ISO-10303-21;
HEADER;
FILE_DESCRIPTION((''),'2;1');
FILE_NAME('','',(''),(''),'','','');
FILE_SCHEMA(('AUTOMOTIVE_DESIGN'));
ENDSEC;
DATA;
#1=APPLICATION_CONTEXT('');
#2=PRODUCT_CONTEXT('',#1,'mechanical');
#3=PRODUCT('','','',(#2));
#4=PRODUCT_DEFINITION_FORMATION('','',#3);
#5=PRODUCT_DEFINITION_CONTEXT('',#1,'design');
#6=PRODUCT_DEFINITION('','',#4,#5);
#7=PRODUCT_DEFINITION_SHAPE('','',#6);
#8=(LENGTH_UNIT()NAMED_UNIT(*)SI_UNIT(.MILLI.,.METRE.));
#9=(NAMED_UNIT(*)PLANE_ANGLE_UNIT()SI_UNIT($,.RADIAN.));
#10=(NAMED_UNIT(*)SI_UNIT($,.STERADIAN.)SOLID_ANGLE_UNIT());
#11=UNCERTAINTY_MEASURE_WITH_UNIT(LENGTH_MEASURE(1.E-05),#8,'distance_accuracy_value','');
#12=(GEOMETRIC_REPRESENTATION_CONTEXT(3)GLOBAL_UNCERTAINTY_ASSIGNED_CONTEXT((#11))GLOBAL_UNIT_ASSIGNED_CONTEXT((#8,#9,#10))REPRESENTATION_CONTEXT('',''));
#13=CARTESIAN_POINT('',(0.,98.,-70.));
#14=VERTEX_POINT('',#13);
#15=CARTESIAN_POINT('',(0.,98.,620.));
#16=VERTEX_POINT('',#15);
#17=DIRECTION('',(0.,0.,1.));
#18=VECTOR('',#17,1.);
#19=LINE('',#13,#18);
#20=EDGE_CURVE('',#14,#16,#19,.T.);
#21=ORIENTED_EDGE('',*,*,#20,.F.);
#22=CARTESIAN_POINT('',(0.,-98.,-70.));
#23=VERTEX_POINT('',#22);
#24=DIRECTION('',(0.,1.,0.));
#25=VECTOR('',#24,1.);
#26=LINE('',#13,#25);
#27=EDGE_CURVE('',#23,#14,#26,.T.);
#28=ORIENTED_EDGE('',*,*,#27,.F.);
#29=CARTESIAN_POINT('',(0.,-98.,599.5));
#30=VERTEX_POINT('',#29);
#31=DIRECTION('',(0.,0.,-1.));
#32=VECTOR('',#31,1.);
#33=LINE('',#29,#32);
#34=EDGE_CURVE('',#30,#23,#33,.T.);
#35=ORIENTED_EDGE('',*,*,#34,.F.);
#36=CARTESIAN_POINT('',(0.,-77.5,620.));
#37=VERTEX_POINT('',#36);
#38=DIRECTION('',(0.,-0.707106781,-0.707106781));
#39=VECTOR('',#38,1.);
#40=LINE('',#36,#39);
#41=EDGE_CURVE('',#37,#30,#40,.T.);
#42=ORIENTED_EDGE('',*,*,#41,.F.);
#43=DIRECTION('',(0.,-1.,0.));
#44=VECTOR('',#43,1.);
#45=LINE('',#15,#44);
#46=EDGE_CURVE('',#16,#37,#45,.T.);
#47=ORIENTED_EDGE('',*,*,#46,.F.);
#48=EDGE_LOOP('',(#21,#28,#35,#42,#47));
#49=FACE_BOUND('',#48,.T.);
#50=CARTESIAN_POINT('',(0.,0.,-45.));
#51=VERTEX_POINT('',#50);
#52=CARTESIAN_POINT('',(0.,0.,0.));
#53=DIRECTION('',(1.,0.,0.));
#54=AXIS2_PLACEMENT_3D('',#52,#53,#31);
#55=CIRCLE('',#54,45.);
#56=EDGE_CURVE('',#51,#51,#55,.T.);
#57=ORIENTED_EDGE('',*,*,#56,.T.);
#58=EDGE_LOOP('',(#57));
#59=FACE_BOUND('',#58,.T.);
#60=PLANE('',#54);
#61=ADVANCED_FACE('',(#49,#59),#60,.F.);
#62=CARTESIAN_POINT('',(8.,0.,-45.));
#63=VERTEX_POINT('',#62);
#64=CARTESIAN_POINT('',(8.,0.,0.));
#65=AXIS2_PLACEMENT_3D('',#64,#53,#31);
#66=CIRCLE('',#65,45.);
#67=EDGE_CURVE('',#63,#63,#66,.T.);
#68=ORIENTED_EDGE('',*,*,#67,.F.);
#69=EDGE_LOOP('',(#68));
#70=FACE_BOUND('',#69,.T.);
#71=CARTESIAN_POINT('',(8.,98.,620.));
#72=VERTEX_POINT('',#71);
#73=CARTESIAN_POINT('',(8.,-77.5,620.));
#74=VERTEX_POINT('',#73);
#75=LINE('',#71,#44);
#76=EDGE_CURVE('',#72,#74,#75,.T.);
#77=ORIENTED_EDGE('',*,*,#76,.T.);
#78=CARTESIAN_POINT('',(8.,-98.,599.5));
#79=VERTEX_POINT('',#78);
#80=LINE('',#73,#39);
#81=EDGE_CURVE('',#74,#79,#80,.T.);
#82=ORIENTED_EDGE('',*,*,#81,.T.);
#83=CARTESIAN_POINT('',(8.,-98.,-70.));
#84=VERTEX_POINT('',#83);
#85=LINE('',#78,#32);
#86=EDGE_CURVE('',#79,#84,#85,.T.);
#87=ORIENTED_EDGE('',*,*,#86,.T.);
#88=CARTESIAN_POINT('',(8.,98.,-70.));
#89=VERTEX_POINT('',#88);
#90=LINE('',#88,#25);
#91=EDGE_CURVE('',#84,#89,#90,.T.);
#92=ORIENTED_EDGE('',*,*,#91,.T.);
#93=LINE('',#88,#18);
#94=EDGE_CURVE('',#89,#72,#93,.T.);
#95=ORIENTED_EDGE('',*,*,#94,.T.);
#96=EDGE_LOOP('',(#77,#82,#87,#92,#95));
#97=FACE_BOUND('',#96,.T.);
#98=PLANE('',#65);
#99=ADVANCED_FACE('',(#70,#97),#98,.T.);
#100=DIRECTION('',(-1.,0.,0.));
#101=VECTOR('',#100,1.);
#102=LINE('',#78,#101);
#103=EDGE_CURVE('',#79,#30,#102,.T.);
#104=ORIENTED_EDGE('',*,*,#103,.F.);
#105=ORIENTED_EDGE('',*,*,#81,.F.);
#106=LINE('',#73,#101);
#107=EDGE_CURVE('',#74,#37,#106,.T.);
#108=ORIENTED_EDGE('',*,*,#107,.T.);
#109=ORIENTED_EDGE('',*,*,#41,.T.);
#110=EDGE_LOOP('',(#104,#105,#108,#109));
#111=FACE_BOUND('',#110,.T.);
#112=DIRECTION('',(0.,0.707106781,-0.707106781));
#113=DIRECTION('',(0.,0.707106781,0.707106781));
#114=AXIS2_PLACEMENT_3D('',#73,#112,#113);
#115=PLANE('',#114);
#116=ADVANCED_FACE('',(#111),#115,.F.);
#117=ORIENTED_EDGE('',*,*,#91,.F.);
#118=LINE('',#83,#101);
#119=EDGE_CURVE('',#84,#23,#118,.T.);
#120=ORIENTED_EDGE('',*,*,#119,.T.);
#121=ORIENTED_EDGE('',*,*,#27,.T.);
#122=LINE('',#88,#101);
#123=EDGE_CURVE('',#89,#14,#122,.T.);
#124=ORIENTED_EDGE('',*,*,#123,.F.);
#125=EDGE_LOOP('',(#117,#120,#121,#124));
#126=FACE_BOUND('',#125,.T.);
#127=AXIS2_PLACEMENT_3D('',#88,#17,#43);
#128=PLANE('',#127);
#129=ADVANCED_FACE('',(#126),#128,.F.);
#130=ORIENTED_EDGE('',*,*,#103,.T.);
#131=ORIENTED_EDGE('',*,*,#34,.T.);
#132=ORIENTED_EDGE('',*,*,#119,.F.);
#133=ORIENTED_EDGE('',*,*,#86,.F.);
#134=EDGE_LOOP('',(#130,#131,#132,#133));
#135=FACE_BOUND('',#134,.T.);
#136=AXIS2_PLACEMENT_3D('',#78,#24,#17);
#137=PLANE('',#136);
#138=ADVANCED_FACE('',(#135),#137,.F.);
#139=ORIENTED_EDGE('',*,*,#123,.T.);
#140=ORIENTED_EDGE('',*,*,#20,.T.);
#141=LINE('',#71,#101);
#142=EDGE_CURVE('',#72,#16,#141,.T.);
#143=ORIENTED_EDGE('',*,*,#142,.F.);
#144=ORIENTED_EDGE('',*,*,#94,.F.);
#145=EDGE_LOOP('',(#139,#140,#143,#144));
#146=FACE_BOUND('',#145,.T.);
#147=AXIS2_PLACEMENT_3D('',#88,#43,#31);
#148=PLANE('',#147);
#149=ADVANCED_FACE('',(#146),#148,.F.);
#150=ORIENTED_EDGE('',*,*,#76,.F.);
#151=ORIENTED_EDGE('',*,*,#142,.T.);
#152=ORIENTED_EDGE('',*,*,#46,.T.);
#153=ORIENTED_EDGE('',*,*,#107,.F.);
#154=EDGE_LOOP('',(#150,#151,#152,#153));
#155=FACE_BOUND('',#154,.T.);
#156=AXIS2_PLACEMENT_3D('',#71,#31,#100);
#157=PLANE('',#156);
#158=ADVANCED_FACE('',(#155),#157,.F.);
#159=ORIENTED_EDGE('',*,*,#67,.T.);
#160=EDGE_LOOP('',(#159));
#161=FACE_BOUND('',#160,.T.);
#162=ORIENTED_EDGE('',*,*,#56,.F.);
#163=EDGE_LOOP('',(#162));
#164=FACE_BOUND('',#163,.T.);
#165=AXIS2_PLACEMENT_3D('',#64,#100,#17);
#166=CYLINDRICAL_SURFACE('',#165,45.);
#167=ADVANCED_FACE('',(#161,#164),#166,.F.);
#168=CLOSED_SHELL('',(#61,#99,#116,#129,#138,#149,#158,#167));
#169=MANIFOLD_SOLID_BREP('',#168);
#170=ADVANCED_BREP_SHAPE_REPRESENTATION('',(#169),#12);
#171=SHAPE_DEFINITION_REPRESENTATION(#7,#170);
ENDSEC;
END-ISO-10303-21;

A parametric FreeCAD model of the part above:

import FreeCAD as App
import Part
import Sketcher

V = App.Vector
Q = App.Units.Quantity

doc = App.newDocument("Part")
body = doc.addObject("PartDesign::Body", "Body")

sketch1 = body.newObject("Sketcher::SketchObject", "Sketch")
sketch1.AttachmentSupport = (doc.getObject("YZ_Plane"), [""])
sketch1.MapMode = "FlatFace"
sketch1.addGeometry(Part.LineSegment(V(98, -70, 0), V(98, 620, 0)), False)
sketch1.addGeometry(Part.LineSegment(V(98, 620, 0), V(-77.5, 620, 0)), False)
sketch1.addGeometry(Part.LineSegment(V(-77.5, 620, 0), V(-98, 599.5, 0)), False)
sketch1.addGeometry(Part.LineSegment(V(-98, 599.5, 0), V(-98, -70, 0)), False)
sketch1.addGeometry(Part.LineSegment(V(-98, -70, 0), V(98, -70, 0)), False)
sketch1.addGeometry(Part.Circle(V(0, 0, 0), V(0, 0, 1), 45), False)
sketch1.addConstraint(Sketcher.Constraint("Coincident", 0, 2, 1, 1))
sketch1.addConstraint(Sketcher.Constraint("Coincident", 1, 2, 2, 1))
sketch1.addConstraint(Sketcher.Constraint("Coincident", 2, 2, 3, 1))
sketch1.addConstraint(Sketcher.Constraint("Coincident", 3, 2, 4, 1))
sketch1.addConstraint(Sketcher.Constraint("Coincident", 4, 2, 0, 1))
sketch1.addConstraint(Sketcher.Constraint("Vertical", 0))
sketch1.addConstraint(Sketcher.Constraint("Horizontal", 1))
sketch1.addConstraint(Sketcher.Constraint("Vertical", 3))
sketch1.addConstraint(Sketcher.Constraint("Horizontal", 4))
sketch1.addConstraint(Sketcher.Constraint("Coincident", 5, 3, -1, 1))
sketch1.addConstraint(Sketcher.Constraint("Diameter", 5, 90.0))
sketch1.addConstraint(Sketcher.Constraint("DistanceX", 4, 1, 4, 2, 196.0))
sketch1.addConstraint(Sketcher.Constraint("DistanceY", 0, 1, 0, 2, 690.0))
sketch1.addConstraint(Sketcher.Constraint("Angle", 2, Q("-135 deg")))
sketch1.addConstraint(Sketcher.Constraint("DistanceX", 1, 2, 1, 1, 175.5))
sketch1.addConstraint(Sketcher.Constraint("DistanceX", -1, 1, 0, 2, 98.0))
sketch1.addConstraint(Sketcher.Constraint("DistanceY", -1, 1, 0, 2, 620.0))
pad1 = body.newObject("PartDesign::Pad", "Pad")
pad1.Profile = sketch1
pad1.Length = 8

doc.recompute()
